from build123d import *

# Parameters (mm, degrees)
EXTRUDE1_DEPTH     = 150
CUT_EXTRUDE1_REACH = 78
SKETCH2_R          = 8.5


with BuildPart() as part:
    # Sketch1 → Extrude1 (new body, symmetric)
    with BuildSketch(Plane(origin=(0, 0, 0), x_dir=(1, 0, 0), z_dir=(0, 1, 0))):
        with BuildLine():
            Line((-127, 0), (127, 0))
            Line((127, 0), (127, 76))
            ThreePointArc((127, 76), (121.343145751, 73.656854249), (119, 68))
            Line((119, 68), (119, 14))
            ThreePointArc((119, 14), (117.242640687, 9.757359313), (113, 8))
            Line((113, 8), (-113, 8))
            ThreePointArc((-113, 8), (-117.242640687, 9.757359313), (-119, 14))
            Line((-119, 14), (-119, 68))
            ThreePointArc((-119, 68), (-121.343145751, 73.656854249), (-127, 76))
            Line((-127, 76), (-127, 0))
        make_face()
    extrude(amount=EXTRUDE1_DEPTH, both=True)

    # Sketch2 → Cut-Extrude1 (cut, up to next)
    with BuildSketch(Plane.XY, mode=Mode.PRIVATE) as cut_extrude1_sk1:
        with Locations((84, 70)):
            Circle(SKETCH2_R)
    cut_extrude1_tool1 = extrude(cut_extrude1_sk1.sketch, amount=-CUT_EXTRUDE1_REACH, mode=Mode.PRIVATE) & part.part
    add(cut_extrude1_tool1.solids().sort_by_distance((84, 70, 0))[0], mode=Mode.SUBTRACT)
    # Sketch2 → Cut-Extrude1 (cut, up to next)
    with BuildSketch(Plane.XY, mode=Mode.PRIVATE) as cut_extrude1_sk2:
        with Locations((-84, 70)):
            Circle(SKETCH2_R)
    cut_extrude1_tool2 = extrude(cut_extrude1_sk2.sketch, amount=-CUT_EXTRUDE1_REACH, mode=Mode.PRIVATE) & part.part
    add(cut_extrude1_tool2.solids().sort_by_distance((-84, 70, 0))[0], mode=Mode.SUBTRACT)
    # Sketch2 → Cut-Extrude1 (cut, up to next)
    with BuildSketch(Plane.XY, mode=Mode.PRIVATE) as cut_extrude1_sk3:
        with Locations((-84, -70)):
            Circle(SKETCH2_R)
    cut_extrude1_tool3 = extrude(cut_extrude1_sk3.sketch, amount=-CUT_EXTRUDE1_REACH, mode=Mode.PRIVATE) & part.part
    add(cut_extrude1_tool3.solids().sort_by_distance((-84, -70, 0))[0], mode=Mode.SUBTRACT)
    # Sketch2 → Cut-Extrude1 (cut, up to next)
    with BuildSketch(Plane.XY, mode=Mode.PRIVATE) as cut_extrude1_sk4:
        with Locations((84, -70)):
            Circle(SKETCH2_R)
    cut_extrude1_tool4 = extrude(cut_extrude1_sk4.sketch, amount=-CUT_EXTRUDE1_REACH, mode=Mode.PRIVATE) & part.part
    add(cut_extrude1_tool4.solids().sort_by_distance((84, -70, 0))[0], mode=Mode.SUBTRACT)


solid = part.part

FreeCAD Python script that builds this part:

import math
import FreeCAD as App
import Part
import Sketcher

V = App.Vector

doc = App.newDocument("Part")
params = doc.addObject("Spreadsheet::Sheet", "Params")
for row, (alias, value) in enumerate([
    ("sketch1_radius", "8 mm"),
    ("sketch1_radius2", "6 mm"),
    ("sketch1_width", "254 mm"),
    ("sketch1_height", "76 mm"),
    ("sketch1_height2", "54 mm"),
    ("pad1_length", "300 mm"),
    ("sketch2_diameter", "17 mm"),
    ("sketch3_diameter", "17 mm"),
    ("sketch4_diameter", "17 mm"),
    ("sketch5_diameter", "17 mm"),
], start=1):
    params.set(f"A{row}", alias)
    params.set(f"B{row}", "=" + value)
    params.setAlias(f"B{row}", alias)

body = doc.addObject("PartDesign::Body", "Body")

# Sketch on XZ plane
sketch1 = body.newObject("Sketcher::SketchObject", "Sketch")
sketch1.AttachmentSupport = (doc.getObject("XZ_Plane"), [""])
sketch1.MapMode = "FlatFace"
sketch1.addGeometry(Part.LineSegment(V(-127, 0, 0), V(127, 0, 0)), False)
sketch1.addGeometry(Part.LineSegment(V(127, 0, 0), V(127, -76, 0)), False)
sketch1.addGeometry(Part.ArcOfCircle(Part.Circle(V(127, -68, 0), V(0, 0, 1), 8), math.radians(-180), math.radians(-90)), False)
sketch1.addGeometry(Part.LineSegment(V(119, -68, 0), V(119, -14, 0)), False)
sketch1.addGeometry(Part.ArcOfCircle(Part.Circle(V(113, -14, 0), V(0, 0, 1), 6), math.radians(0), math.radians(90)), False)
sketch1.addGeometry(Part.LineSegment(V(113, -8, 0), V(-113, -8, 0)), False)
sketch1.addGeometry(Part.ArcOfCircle(Part.Circle(V(-113, -14, 0), V(0, 0, 1), 6), math.radians(90), math.radians(180)), False)
sketch1.addGeometry(Part.LineSegment(V(-119, -14, 0), V(-119, -68, 0)), False)
sketch1.addGeometry(Part.ArcOfCircle(Part.Circle(V(-127, -68, 0), V(0, 0, 1), 8), math.radians(-90), math.radians(0)), False)
sketch1.addGeometry(Part.LineSegment(V(-127, -76, 0), V(-127, 0, 0)), False)
sketch1.addConstraint(Sketcher.Constraint("Coincident", 0, 2, 1, 1))
sketch1.addConstraint(Sketcher.Constraint("Coincident", 1, 2, 2, 2))
sketch1.addConstraint(Sketcher.Constraint("Tangent", 2, 1, 3, 1))
sketch1.addConstraint(Sketcher.Constraint("Tangent", 3, 2, 4, 1))
sketch1.addConstraint(Sketcher.Constraint("Tangent", 4, 2, 5, 1))
sketch1.addConstraint(Sketcher.Constraint("Tangent", 5, 2, 6, 1))
sketch1.addConstraint(Sketcher.Constraint("Tangent", 6, 2, 7, 1))
sketch1.addConstraint(Sketcher.Constraint("Tangent", 7, 2, 8, 2))
sketch1.addConstraint(Sketcher.Constraint("Coincident", 8, 1, 9, 1))
sketch1.addConstraint(Sketcher.Constraint("Coincident", 9, 2, 0, 1))
sketch1.addConstraint(Sketcher.Constraint("Horizontal", 0))
sketch1.addConstraint(Sketcher.Constraint("Vertical", 1))
sketch1.addConstraint(Sketcher.Constraint("Vertical", 3))
sketch1.addConstraint(Sketcher.Constraint("Horizontal", 5))
sketch1.addConstraint(Sketcher.Constraint("Vertical", 7))
sketch1.addConstraint(Sketcher.Constraint("Vertical", 9))
sketch1.addConstraint(Sketcher.Constraint("Equal", 4, 6))
sketch1.addConstraint(Sketcher.Constraint("Equal", 2, 8))
sketch1.addConstraint(Sketcher.Constraint("Symmetric", 0, 2, 9, 2, -1, 1))
sketch1.addConstraint(Sketcher.Constraint("Symmetric", 2, 3, 8, 3, -2))
sketch1.addConstraint(Sketcher.Constraint("Vertical", 2, 3, 0, 2))
sketch1.addConstraint(Sketcher.Constraint("Radius", 2, 8.0))
sketch1.addConstraint(Sketcher.Constraint("Radius", 4, 6.0))
sketch1.addConstraint(Sketcher.Constraint("DistanceX", 0, 1, 0, 2, 254.0))
sketch1.addConstraint(Sketcher.Constraint("DistanceY", 1, 2, 1, 1, 76.0))
sketch1.addConstraint(Sketcher.Constraint("DistanceY", 3, 1, 3, 2, 54.0))
sketch1.setExpression("Constraints[21]", "Params.sketch1_radius")
sketch1.setExpression("Constraints[22]", "Params.sketch1_radius2")
sketch1.setExpression("Constraints[23]", "Params.sketch1_width")
sketch1.setExpression("Constraints[24]", "Params.sketch1_height")
sketch1.setExpression("Constraints[25]", "Params.sketch1_height2")
pad1 = body.newObject("PartDesign::Pad", "Pad")
pad1.Profile = sketch1
pad1.setExpression("Length", "Params.pad1_length")
pad1.Midplane = True

# Sketch on XY plane
sketch2 = body.newObject("Sketcher::SketchObject", "Sketch001")
sketch2.AttachmentSupport = (doc.getObject("XY_Plane"), [""])
sketch2.MapMode = "FlatFace"
sketch2.addGeometry(Part.Circle(V(84, 70, 0), V(0, 0, 1), 8), False)
sketch2.addConstraint(Sketcher.Constraint("Diameter", 0, 17.0))
sketch2.addConstraint(Sketcher.Constraint("DistanceX", -1, 1, 0, 3, 84.0))
sketch2.addConstraint(Sketcher.Constraint("DistanceY", -1, 1, 0, 3, 70.0))
sketch2.setExpression("Constraints[0]", "Params.sketch2_diameter")
pocket1 = body.newObject("PartDesign::Pocket", "Pocket")
pocket1.Profile = sketch2
pocket1.Type = "UpToFirst"

# Sketch on XY plane
sketch3 = body.newObject("Sketcher::SketchObject", "Sketch002")
sketch3.AttachmentSupport = (doc.getObject("XY_Plane"), [""])
sketch3.MapMode = "FlatFace"
sketch3.addGeometry(Part.Circle(V(-84, 70, 0), V(0, 0, 1), 8), False)
sketch3.addConstraint(Sketcher.Constraint("Diameter", 0, 17.0))
sketch3.addConstraint(Sketcher.Constraint("DistanceX", 0, 3, -1, 1, 84.0))
sketch3.addConstraint(Sketcher.Constraint("DistanceY", -1, 1, 0, 3, 70.0))
sketch3.setExpression("Constraints[0]", "Params.sketch3_diameter")
pocket2 = body.newObject("PartDesign::Pocket", "Pocket001")
pocket2.Profile = sketch3
pocket2.Type = "UpToFirst"

# Sketch on XY plane
sketch4 = body.newObject("Sketcher::SketchObject", "Sketch003")
sketch4.AttachmentSupport = (doc.getObject("XY_Plane"), [""])
sketch4.MapMode = "FlatFace"
sketch4.addGeometry(Part.Circle(V(-84, -70, 0), V(0, 0, 1), 8), False)
sketch4.addConstraint(Sketcher.Constraint("Diameter", 0, 17.0))
sketch4.addConstraint(Sketcher.Constraint("DistanceX", 0, 3, -1, 1, 84.0))
sketch4.addConstraint(Sketcher.Constraint("DistanceY", 0, 3, -1, 1, 70.0))
sketch4.setExpression("Constraints[0]", "Params.sketch4_diameter")
pocket3 = body.newObject("PartDesign::Pocket", "Pocket002")
pocket3.Profile = sketch4
pocket3.Type = "UpToFirst"

# Sketch on XY plane
sketch5 = body.newObject("Sketcher::SketchObject", "Sketch004")
sketch5.AttachmentSupport = (doc.getObject("XY_Plane"), [""])
sketch5.MapMode = "FlatFace"
sketch5.addGeometry(Part.Circle(V(84, -70, 0), V(0, 0, 1), 8), False)
sketch5.addConstraint(Sketcher.Constraint("Diameter", 0, 17.0))
sketch5.addConstraint(Sketcher.Constraint("DistanceX", -1, 1, 0, 3, 84.0))
sketch5.addConstraint(Sketcher.Constraint("DistanceY", 0, 3, -1, 1, 70.0))
sketch5.setExpression("Constraints[0]", "Params.sketch5_diameter")
pocket4 = body.newObject("PartDesign::Pocket", "Pocket003")
pocket4.Profile = sketch5
pocket4.Type = "UpToFirst"

doc.recompute()
